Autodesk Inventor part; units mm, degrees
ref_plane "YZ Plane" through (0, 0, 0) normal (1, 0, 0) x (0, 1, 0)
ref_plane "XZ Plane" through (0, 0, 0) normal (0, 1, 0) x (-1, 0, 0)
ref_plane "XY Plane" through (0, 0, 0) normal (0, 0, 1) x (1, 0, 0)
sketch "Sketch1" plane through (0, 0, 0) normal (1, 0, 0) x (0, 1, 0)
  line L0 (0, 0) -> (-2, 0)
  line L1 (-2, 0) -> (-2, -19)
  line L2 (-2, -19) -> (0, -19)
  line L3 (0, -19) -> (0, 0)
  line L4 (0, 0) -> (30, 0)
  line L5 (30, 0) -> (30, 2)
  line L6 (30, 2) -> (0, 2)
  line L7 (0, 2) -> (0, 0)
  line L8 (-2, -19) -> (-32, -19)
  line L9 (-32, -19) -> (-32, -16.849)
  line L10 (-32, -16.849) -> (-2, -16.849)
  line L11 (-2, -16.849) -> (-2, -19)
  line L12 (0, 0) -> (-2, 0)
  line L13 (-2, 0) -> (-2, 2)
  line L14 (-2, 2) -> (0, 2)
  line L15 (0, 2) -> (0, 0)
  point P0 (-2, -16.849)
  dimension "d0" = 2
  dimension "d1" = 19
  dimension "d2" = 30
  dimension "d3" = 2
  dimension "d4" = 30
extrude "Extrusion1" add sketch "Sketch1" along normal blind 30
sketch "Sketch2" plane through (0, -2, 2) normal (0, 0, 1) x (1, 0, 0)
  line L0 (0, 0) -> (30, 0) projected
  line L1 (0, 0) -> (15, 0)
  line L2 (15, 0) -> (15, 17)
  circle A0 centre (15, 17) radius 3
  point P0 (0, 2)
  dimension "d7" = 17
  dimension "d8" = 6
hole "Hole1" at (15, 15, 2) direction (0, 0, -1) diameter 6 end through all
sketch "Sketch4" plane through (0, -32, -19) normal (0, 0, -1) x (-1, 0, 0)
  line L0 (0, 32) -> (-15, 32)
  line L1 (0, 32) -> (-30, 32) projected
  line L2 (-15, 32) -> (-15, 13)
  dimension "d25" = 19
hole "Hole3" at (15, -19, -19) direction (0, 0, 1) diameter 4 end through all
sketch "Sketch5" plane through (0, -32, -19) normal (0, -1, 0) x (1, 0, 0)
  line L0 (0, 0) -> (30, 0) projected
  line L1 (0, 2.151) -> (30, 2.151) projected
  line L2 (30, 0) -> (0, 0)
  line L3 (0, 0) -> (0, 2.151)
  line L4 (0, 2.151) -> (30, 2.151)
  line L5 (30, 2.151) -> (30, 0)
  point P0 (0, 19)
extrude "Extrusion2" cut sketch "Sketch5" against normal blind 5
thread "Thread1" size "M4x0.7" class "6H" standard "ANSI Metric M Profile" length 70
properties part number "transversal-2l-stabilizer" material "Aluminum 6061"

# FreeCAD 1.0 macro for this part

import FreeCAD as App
import Part
import Sketcher
from FreeCAD import Vector
Q = App.Units.Quantity

doc = App.newDocument("Part")
body = doc.addObject("PartDesign::Body", "Body")

sketch1 = body.newObject("Sketcher::SketchObject", "Sketch")
sketch1.AttachmentSupport = (doc.getObject("YZ_Plane"), [""])
sketch1.MapMode = "FlatFace"
sketch1.addGeometry([
    Part.LineSegment(Vector(0, -19, 0), Vector(0, 0, 0)),
    Part.LineSegment(Vector(0, 0, 0), Vector(30, 0, 0)),
    Part.LineSegment(Vector(30, 0, 0), Vector(30, 2, 0)),
    Part.LineSegment(Vector(30, 2, 0), Vector(-2, 2, 0)),
    Part.LineSegment(Vector(-2, 2, 0), Vector(-2, -16.849, 0)),
    Part.LineSegment(Vector(-2, -16.849, 0), Vector(-32, -16.849, 0)),
    Part.LineSegment(Vector(-32, -16.849, 0), Vector(-32, -19, 0)),
    Part.LineSegment(Vector(-32, -19, 0), Vector(0, -19, 0)),
], False)
sketch1.addConstraint([
    Sketcher.Constraint("Coincident", 0, 2, 1, 1),
    Sketcher.Constraint("Coincident", 1, 2, 2, 1),
    Sketcher.Constraint("Coincident", 2, 2, 3, 1),
    Sketcher.Constraint("Coincident", 3, 2, 4, 1),
    Sketcher.Constraint("Coincident", 4, 2, 5, 1),
    Sketcher.Constraint("Coincident", 5, 2, 6, 1),
    Sketcher.Constraint("Coincident", 6, 2, 7, 1),
    Sketcher.Constraint("Coincident", 7, 2, 0, 1),
    Sketcher.Constraint("Vertical", 0),
    Sketcher.Constraint("Horizontal", 1),
    Sketcher.Constraint("Vertical", 2),
    Sketcher.Constraint("Horizontal", 3),
    Sketcher.Constraint("Vertical", 4),
    Sketcher.Constraint("Horizontal", 5),
    Sketcher.Constraint("Vertical", 6),
    Sketcher.Constraint("Horizontal", 7),
    Sketcher.Constraint("Coincident", 0, 2, -1, 1),
    Sketcher.Constraint("Equal", 1, 5),
    Sketcher.Constraint("DistanceX", 1, 1, 1, 2, Q("30 mm")),
    Sketcher.Constraint("DistanceY", 0, 1, 0, 2, Q("19 mm")),
    Sketcher.Constraint("DistanceY", 2, 1, 2, 2, Q("2 mm")),
    Sketcher.Constraint("DistanceX", 3, 2, -1, 1, Q("2 mm")),
    Sketcher.Constraint("DistanceY", 4, 2, 4, 1, Q("18.849 mm")),
])
pad1 = body.newObject("PartDesign::Pad", "Pad")
pad1.Profile = sketch1
pad1.Length = 30

sketch2 = body.newObject("Sketcher::SketchObject", "Sketch001")
sketch2.AttachmentSupport = (doc.getObject("XY_Plane"), [""])
sketch2.MapMode = "FlatFace"
sketch2.AttachmentOffset = App.Placement(Vector(0, 0, 2), App.Rotation())
sketch2.addGeometry(Part.Circle(Vector(15, 15, 0), Vector(0, 0, 1), 3), False)
sketch2.addConstraint([
    Sketcher.Constraint("Diameter", 0, Q("6 mm")),
    Sketcher.Constraint("DistanceX", -1, 1, 0, 3, Q("15 mm")),
    Sketcher.Constraint("DistanceY", -1, 1, 0, 3, Q("15 mm")),
])
doc.recompute()
hole = body.newObject("PartDesign::Hole", "Hole")
hole.Profile = sketch2
hole.ThreadType = "None"
hole.Diameter = 6
hole.DepthType = "ThroughAll"

sketch3 = body.newObject("Sketcher::SketchObject", "Sketch002")
sketch3.AttachmentSupport = (doc.getObject("XY_Plane"), [""])
sketch3.MapMode = "FlatFace"
sketch3.AttachmentOffset = App.Placement(Vector(0, 0, -19), App.Rotation())
sketch3.addGeometry(Part.Circle(Vector(15, -19, 0), Vector(0, 0, 1), 2), False)
sketch3.addConstraint([
    Sketcher.Constraint("Diameter", 0, Q("4 mm")),
    Sketcher.Constraint("DistanceX", -1, 1, 0, 3, Q("15 mm")),
    Sketcher.Constraint("DistanceY", 0, 3, -1, 1, Q("19 mm")),
])
doc.recompute()
hole2 = body.newObject("PartDesign::Hole", "Hole001")
hole2.Profile = sketch3
hole2.ThreadType = "None"
hole2.Diameter = 4
hole2.DepthType = "ThroughAll"
hole2.Reversed = True

sketch4 = body.newObject("Sketcher::SketchObject", "Sketch003")
sketch4.AttachmentSupport = (doc.getObject("XZ_Plane"), [""])
sketch4.MapMode = "FlatFace"
sketch4.AttachmentOffset = App.Placement(Vector(0, 0, 32), App.Rotation())
sketch4.addGeometry([
    Part.LineSegment(Vector(0, -16.849, 0), Vector(0, -19, 0)),
    Part.LineSegment(Vector(0, -19, 0), Vector(30, -19, 0)),
    Part.LineSegment(Vector(30, -19, 0), Vector(30, -16.849, 0)),
    Part.LineSegment(Vector(30, -16.849, 0), Vector(0, -16.849, 0)),
], False)
sketch4.addConstraint([
    Sketcher.Constraint("Coincident", 0, 2, 1, 1),
    Sketcher.Constraint("Coincident", 1, 2, 2, 1),
    Sketcher.Constraint("Coincident", 2, 2, 3, 1),
    Sketcher.Constraint("Coincident", 3, 2, 0, 1),
    Sketcher.Constraint("Vertical", 0),
    Sketcher.Constraint("Horizontal", 1),
    Sketcher.Constraint("Vertical", 2),
    Sketcher.Constraint("Horizontal", 3),
    Sketcher.Constraint("PointOnObject", 0, 2, -2),
    Sketcher.Constraint("DistanceX", 1, 1, 1, 2, Q("30 mm")),
    Sketcher.Constraint("DistanceY", 0, 2, -1, 1, Q("19 mm")),
    Sketcher.Constraint("DistanceY", 0, 2, 0, 1, Q("2.151 mm")),
])
pocket1 = body.newObject("PartDesign::Pocket", "Pocket")
pocket1.Profile = sketch4
pocket1.Length = 5

doc.recompute()
